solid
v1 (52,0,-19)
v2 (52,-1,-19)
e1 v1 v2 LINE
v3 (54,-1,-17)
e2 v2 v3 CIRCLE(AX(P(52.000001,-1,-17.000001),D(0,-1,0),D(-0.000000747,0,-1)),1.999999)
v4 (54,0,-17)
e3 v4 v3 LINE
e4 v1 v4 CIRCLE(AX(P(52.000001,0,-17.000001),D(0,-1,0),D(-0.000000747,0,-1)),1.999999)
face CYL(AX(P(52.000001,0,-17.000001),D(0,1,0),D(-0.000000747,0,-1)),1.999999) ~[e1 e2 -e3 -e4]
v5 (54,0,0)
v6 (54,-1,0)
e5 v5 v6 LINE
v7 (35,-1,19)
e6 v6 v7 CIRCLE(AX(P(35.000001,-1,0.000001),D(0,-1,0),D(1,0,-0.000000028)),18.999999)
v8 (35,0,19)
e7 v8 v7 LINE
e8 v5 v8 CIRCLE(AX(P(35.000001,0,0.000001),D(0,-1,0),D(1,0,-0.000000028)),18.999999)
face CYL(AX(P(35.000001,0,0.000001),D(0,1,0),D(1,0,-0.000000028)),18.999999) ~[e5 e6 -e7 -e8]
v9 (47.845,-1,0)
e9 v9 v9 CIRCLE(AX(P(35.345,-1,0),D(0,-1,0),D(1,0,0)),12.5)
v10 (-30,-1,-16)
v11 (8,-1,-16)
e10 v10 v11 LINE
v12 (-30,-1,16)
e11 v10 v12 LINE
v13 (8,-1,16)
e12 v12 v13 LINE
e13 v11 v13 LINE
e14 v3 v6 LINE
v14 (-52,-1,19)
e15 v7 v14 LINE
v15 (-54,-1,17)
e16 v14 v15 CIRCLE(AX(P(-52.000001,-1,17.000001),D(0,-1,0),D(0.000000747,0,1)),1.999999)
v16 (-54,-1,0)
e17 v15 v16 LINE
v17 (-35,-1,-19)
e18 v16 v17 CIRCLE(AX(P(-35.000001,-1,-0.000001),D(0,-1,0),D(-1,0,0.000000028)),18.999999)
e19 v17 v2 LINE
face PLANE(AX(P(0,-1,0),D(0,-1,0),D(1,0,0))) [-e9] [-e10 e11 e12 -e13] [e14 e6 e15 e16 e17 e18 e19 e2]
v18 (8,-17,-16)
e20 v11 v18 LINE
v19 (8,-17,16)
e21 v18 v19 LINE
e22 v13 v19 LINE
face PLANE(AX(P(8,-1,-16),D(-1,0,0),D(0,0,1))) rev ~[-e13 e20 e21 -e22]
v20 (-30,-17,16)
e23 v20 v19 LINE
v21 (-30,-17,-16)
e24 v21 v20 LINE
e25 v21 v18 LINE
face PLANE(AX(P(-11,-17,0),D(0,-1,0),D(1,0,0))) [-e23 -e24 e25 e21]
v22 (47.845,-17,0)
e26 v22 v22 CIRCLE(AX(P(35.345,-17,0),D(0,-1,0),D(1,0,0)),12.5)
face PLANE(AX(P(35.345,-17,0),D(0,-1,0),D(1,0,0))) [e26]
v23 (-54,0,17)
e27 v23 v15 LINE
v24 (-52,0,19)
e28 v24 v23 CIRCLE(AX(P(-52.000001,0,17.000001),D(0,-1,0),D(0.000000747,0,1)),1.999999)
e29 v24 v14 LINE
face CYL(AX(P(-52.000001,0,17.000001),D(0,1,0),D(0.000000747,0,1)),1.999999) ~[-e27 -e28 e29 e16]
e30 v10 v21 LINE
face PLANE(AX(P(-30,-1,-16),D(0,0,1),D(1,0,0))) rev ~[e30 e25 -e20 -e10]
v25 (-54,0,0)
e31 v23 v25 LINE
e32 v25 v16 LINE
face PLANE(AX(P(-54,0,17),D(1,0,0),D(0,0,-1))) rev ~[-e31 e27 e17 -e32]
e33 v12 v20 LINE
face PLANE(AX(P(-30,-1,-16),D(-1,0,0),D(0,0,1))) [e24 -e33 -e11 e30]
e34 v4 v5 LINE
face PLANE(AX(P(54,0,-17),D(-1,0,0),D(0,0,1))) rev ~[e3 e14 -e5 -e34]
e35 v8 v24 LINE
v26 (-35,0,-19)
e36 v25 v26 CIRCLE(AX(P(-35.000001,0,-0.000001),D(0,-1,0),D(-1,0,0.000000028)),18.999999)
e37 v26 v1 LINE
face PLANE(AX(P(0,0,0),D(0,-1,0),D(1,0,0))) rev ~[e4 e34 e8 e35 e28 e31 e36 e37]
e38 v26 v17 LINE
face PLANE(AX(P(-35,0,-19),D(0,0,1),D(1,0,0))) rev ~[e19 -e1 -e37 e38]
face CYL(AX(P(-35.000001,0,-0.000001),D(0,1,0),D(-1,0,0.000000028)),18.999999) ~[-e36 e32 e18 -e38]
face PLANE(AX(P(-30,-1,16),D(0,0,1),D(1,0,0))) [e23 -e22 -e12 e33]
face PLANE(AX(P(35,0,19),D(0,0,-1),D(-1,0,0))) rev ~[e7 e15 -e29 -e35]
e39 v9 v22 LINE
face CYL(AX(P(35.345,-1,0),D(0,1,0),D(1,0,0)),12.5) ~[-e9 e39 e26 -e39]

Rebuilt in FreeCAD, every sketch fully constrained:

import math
import FreeCAD as App
import Part
import Sketcher

V = App.Vector
Q = App.Units.Quantity


def add_polygon(sketch, points):
    """Adds a closed chain of lines whose ends are joined by coincident constraints."""
    first, n = sketch.GeometryCount, len(points)
    for a, b in zip(points, points[1:] + points[:1]):
        sketch.addGeometry(Part.LineSegment(App.Vector(*a, 0), App.Vector(*b, 0)), False)
    for i in range(n):
        sketch.addConstraint(Sketcher.Constraint("Coincident", first + i, 2, first + (i + 1) % n, 1))

doc = App.newDocument("Part")
body = doc.addObject("PartDesign::Body", "Body")

sketch1 = body.newObject("Sketcher::SketchObject", "Sketch")
sketch1.AttachmentSupport = (doc.getObject("XZ_Plane"), [""])
sketch1.MapMode = "FlatFace"
sketch1.addGeometry([
    Part.ArcOfCircle(Part.Circle(V(35, 0, 0), V(0, 0, 1), 19), math.radians(0), math.radians(90)),
    Part.LineSegment(V(35, 19, 0), V(-52, 19, 0)),
    Part.ArcOfCircle(Part.Circle(V(-52, 17, 0), V(0, 0, 1), 2), math.radians(90), math.radians(180)),
    Part.LineSegment(V(-54, 17, 0), V(-54, 0, 0)),
    Part.ArcOfCircle(Part.Circle(V(-35, 0, 0), V(0, 0, 1), 19), math.radians(180), math.radians(270)),
    Part.LineSegment(V(-35, -19, 0), V(52, -19, 0)),
    Part.ArcOfCircle(Part.Circle(V(52, -17, 0), V(0, 0, 1), 2), math.radians(-90), math.radians(0)),
    Part.LineSegment(V(54, -17, 0), V(54, 0, 0)),
], False)
sketch1.addConstraint([
    Sketcher.Constraint("Tangent", 0, 2, 1, 1),
    Sketcher.Constraint("Tangent", 1, 2, 2, 1),
    Sketcher.Constraint("Tangent", 2, 2, 3, 1),
    Sketcher.Constraint("Tangent", 3, 2, 4, 1),
    Sketcher.Constraint("Tangent", 4, 2, 5, 1),
    Sketcher.Constraint("Tangent", 5, 2, 6, 1),
    Sketcher.Constraint("Tangent", 6, 2, 7, 1),
    Sketcher.Constraint("Tangent", 7, 2, 0, 1),
    Sketcher.Constraint("Horizontal", 1),
    Sketcher.Constraint("Vertical", 3),
    Sketcher.Constraint("Horizontal", 5),
    Sketcher.Constraint("Vertical", 7),
    Sketcher.Constraint("Equal", 0, 4),
    Sketcher.Constraint("Equal", 2, 6),
    Sketcher.Constraint("Symmetric", 0, 3, 4, 3, -1, 1),
    Sketcher.Constraint("PointOnObject", 0, 3, -1),
    Sketcher.Constraint("Radius", 0, Q("18.999999 mm")),
    Sketcher.Constraint("Radius", 2, Q("1.999999 mm")),
    Sketcher.Constraint("DistanceX", 1, 2, 1, 1, Q("87 mm")),
])
pad1 = body.newObject("PartDesign::Pad", "Pad")
pad1.Profile = sketch1
pad1.Length = 1

sketch2 = body.newObject("Sketcher::SketchObject", "Sketch001")
sketch2.AttachmentSupport = (doc.getObject("XZ_Plane"), [""])
sketch2.MapMode = "FlatFace"
sketch2.AttachmentOffset = App.Placement(V(0, 0, 1), App.Rotation())
add_polygon(sketch2, [(-30, 16), (-30, -16), (8, -16), (8, 16)])
sketch2.addGeometry(Part.Circle(V(35, 0, 0), V(0, 0, 1), 12), False)
sketch2.addConstraint([
    Sketcher.Constraint("Vertical", 0),
    Sketcher.Constraint("Horizontal", 1),
    Sketcher.Constraint("Vertical", 2),
    Sketcher.Constraint("Horizontal", 3),
    Sketcher.Constraint("PointOnObject", 4, 3, -1),
    Sketcher.Constraint("Diameter", 4, Q("25 mm")),
    Sketcher.Constraint("DistanceX", 1, 1, 1, 2, Q("38 mm")),
    Sketcher.Constraint("DistanceY", 0, 2, 0, 1, Q("32 mm")),
    Sketcher.Constraint("DistanceX", 0, 2, -1, 1, Q("30 mm")),
    Sketcher.Constraint("DistanceY", 0, 2, -1, 1, Q("16 mm")),
    Sketcher.Constraint("DistanceX", -1, 1, 4, 3, Q("35.345 mm")),
])
pad2 = body.newObject("PartDesign::Pad", "Pad001")
pad2.Profile = sketch2
pad2.Length = 16

doc.recompute()
